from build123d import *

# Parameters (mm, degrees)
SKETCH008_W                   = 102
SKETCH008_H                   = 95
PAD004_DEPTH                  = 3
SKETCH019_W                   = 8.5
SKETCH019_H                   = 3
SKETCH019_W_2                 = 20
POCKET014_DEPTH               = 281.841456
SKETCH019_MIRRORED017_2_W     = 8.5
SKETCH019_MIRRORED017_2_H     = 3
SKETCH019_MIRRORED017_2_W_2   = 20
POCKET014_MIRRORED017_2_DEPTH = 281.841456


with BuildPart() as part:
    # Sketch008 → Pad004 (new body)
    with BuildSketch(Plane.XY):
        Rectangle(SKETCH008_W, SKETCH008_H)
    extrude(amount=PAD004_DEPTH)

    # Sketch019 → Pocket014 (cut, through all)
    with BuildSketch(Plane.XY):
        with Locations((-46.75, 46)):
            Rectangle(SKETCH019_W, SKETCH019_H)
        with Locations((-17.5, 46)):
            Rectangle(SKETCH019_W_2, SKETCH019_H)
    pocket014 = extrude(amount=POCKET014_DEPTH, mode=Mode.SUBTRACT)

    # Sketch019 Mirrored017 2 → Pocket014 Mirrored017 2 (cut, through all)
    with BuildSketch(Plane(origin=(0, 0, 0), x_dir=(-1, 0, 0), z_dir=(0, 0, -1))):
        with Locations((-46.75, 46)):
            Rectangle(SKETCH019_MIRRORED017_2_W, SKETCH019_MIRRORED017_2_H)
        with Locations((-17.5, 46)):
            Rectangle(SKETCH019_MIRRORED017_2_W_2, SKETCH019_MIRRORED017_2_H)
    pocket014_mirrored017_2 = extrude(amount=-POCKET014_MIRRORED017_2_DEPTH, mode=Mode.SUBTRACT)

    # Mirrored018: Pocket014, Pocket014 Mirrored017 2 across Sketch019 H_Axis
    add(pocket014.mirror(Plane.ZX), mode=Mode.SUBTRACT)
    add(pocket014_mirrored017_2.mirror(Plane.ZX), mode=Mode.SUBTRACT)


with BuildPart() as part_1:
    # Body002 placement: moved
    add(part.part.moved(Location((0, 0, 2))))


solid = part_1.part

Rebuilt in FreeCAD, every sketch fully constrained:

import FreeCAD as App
import Part
import Sketcher
Q = App.Units.Quantity


def add_polygon(sketch, points):
    """Adds a closed chain of lines whose ends are joined by coincident constraints."""
    first, n = sketch.GeometryCount, len(points)
    for a, b in zip(points, points[1:] + points[:1]):
        sketch.addGeometry(Part.LineSegment(App.Vector(*a, 0), App.Vector(*b, 0)), False)
    for i in range(n):
        sketch.addConstraint(Sketcher.Constraint("Coincident", first + i, 2, first + (i + 1) % n, 1))

doc = App.newDocument("Part")
body = doc.addObject("PartDesign::Body", "Body")

# Sketch on XY plane
sketch1 = body.newObject("Sketcher::SketchObject", "Sketch")
sketch1.AttachmentSupport = (doc.getObject("XY_Plane"), [""])
sketch1.MapMode = "FlatFace"
add_polygon(sketch1, [(-51, 47.5), (-51, -47.5), (51, -47.5), (51, 47.5)])  # lines 0-3
sketch1.addConstraint([
    Sketcher.Constraint("Vertical", 0),
    Sketcher.Constraint("Horizontal", 1),
    Sketcher.Constraint("Vertical", 2),
    Sketcher.Constraint("Horizontal", 3),
    Sketcher.Constraint("Symmetric", 0, 2, 2, 2, -1, 1),
    Sketcher.Constraint("DistanceX", 1, 1, 1, 2, Q("102 mm")),
    Sketcher.Constraint("DistanceY", 0, 2, 0, 1, Q("95 mm")),
])
pad1 = body.newObject("PartDesign::Pad", "Pad")
pad1.Profile = sketch1
pad1.Length = 3

# Sketch on XY plane
sketch2 = body.newObject("Sketcher::SketchObject", "Sketch001")
sketch2.AttachmentSupport = (doc.getObject("XY_Plane"), [""])
sketch2.MapMode = "FlatFace"
add_polygon(sketch2, [(-51, 47.5), (-51, 44.5), (-42.5, 44.5), (-42.5, 47.5)])  # lines 0-3
add_polygon(sketch2, [(-27.5, 47.5), (-27.5, 44.5), (-7.5, 44.5), (-7.5, 47.5)])  # lines 4-7
sketch2.addConstraint([
    Sketcher.Constraint("Vertical", 0),
    Sketcher.Constraint("Horizontal", 1),
    Sketcher.Constraint("Vertical", 2),
    Sketcher.Constraint("Horizontal", 3),
    Sketcher.Constraint("Vertical", 4),
    Sketcher.Constraint("Horizontal", 5),
    Sketcher.Constraint("Vertical", 6),
    Sketcher.Constraint("Horizontal", 7),
    Sketcher.Constraint("Horizontal", 1, 2, 4, 2),
    Sketcher.Constraint("Horizontal", 3, 2, 6, 2),
    Sketcher.Constraint("DistanceX", 5, 1, 5, 2, Q("20 mm")),
    Sketcher.Constraint("DistanceY", 0, 2, 0, 1, Q("3 mm")),
    Sketcher.Constraint("DistanceX", 1, 1, 1, 2, Q("8.5 mm")),
    Sketcher.Constraint("DistanceX", 0, 2, -1, 1, Q("51 mm")),
    Sketcher.Constraint("DistanceX", 1, 2, 4, 2, Q("15 mm")),
    Sketcher.Constraint("DistanceY", -1, 1, 0, 2, Q("44.5 mm")),
])
pocket1 = body.newObject("PartDesign::Pocket", "Pocket")
pocket1.Profile = sketch2
pocket1.Type = "ThroughAll"
pocket1.Reversed = True

# Sketch on XY plane
sketch3 = body.newObject("Sketcher::SketchObject", "Sketch002")
sketch3.AttachmentSupport = (doc.getObject("XY_Plane"), [""])
sketch3.MapMode = "FlatFace"
add_polygon(sketch3, [(51, 47.5), (51, 44.5), (42.5, 44.5), (42.5, 47.5)])  # lines 0-3
add_polygon(sketch3, [(27.5, 47.5), (27.5, 44.5), (7.5, 44.5), (7.5, 47.5)])  # lines 4-7
sketch3.addConstraint([
    Sketcher.Constraint("Vertical", 0),
    Sketcher.Constraint("Horizontal", 1),
    Sketcher.Constraint("Vertical", 2),
    Sketcher.Constraint("Horizontal", 3),
    Sketcher.Constraint("Vertical", 4),
    Sketcher.Constraint("Horizontal", 5),
    Sketcher.Constraint("Vertical", 6),
    Sketcher.Constraint("Horizontal", 7),
    Sketcher.Constraint("Horizontal", 1, 2, 4, 2),
    Sketcher.Constraint("Horizontal", 3, 2, 6, 2),
    Sketcher.Constraint("DistanceX", 5, 2, 5, 1, Q("20 mm")),
    Sketcher.Constraint("DistanceY", 0, 2, 0, 1, Q("3 mm")),
    Sketcher.Constraint("DistanceX", 1, 2, 1, 1, Q("8.5 mm")),
    Sketcher.Constraint("DistanceX", -1, 1, 0, 2, Q("51 mm")),
    Sketcher.Constraint("DistanceX", 4, 2, 1, 2, Q("15 mm")),
    Sketcher.Constraint("DistanceY", -1, 1, 0, 2, Q("44.5 mm")),
])
pocket2 = body.newObject("PartDesign::Pocket", "Pocket001")
pocket2.Profile = sketch3
pocket2.Type = "ThroughAll"
pocket2.Reversed = True
doc.recompute()

mirrored = body.newObject("PartDesign::Mirrored", "Mirrored")
mirrored.Originals = [pocket1, pocket2]
mirrored.MirrorPlane = (doc.getObject("XZ_Plane"), [""])
body.Tip = mirrored
body2 = doc.addObject("PartDesign::Body", "Body001")
doc.recompute()

body.Placement = App.Placement(App.Vector(0, 0, 2), App.Rotation(App.Vector(0, 0, 1), 0))
boolean = body2.newObject("PartDesign::Boolean", "Boolean")
boolean.Type = "Fuse"
boolean.addObjects([body])

doc.recompute()
